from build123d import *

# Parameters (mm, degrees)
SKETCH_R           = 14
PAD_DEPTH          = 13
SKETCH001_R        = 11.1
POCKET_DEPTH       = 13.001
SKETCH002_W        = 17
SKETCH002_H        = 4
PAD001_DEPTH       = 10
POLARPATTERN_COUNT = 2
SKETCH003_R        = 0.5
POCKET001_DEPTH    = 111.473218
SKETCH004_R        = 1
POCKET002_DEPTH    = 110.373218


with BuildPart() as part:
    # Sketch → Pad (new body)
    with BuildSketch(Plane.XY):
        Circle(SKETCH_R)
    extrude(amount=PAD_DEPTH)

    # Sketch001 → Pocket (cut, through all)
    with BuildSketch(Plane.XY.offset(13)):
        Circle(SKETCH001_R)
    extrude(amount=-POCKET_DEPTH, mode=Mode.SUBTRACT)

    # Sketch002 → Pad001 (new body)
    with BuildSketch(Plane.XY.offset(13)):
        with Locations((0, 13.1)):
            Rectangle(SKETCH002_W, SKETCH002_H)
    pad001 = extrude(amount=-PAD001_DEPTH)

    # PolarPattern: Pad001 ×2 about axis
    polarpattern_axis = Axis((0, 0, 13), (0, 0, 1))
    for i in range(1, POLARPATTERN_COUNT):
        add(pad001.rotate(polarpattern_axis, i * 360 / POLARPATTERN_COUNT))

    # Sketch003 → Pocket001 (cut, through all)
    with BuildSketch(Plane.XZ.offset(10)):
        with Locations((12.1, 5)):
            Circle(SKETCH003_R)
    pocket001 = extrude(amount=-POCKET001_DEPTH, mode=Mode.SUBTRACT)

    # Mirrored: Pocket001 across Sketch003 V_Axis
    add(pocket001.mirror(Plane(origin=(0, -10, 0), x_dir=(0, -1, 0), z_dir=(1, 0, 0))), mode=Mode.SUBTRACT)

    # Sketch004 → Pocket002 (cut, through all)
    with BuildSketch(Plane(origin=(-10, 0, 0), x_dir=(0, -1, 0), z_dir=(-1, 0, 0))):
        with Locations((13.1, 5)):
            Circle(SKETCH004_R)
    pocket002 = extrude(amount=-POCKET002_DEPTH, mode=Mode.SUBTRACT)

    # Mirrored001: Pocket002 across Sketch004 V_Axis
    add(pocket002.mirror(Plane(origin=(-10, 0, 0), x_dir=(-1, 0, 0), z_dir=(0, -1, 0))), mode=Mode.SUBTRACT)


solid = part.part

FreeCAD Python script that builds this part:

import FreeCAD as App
import Part
import Sketcher
from FreeCAD import Vector
Q = App.Units.Quantity

doc = App.newDocument("Part")
body = doc.addObject("PartDesign::Body", "Body")

# Sketch on XY plane
sketch1 = body.newObject("Sketcher::SketchObject", "Sketch")
sketch1.AttachmentSupport = (doc.getObject("XY_Plane"), [""])
sketch1.MapMode = "FlatFace"
sketch1.addGeometry(Part.Circle(Vector(0, 0, 0), Vector(0, 0, 1), 14), False)
sketch1.addConstraint(Sketcher.Constraint("Coincident", 0, 3, -1, 1))
sketch1.addConstraint(Sketcher.Constraint("Diameter", 0, Q("28 mm")))
pad1 = body.newObject("PartDesign::Pad", "Pad")
pad1.Profile = sketch1
pad1.Length = 13

# Sketch on XY plane
sketch2 = body.newObject("Sketcher::SketchObject", "Sketch001")
sketch2.AttachmentSupport = (doc.getObject("XY_Plane"), [""])
sketch2.MapMode = "FlatFace"
sketch2.AttachmentOffset = App.Placement(Vector(0, 0, 13), App.Rotation())
sketch2.addGeometry(Part.Circle(Vector(0, 0, 0), Vector(0, 0, 1), 11), False)
sketch2.addConstraint(Sketcher.Constraint("Coincident", 0, 3, -1, 1))
sketch2.addConstraint(Sketcher.Constraint("Diameter", 0, Q("22.2 mm")))
pocket1 = body.newObject("PartDesign::Pocket", "Pocket")
pocket1.Profile = sketch2
pocket1.Type = "ThroughAll"

# Sketch on XY plane
sketch3 = body.newObject("Sketcher::SketchObject", "Sketch002")
sketch3.AttachmentSupport = (doc.getObject("XY_Plane"), [""])
sketch3.MapMode = "FlatFace"
sketch3.AttachmentOffset = App.Placement(Vector(0, 0, 13), App.Rotation())
sketch3.addGeometry(Part.LineSegment(Vector(-8.5, 15.1, 0), Vector(-8.5, 11.1, 0)), False)
sketch3.addGeometry(Part.LineSegment(Vector(-8.5, 11.1, 0), Vector(8.5, 11.1, 0)), False)
sketch3.addGeometry(Part.LineSegment(Vector(8.5, 11.1, 0), Vector(8.5, 15.1, 0)), False)
sketch3.addGeometry(Part.LineSegment(Vector(8.5, 15.1, 0), Vector(-8.5, 15.1, 0)), False)
sketch3.addConstraint(Sketcher.Constraint("Coincident", 0, 2, 1, 1))
sketch3.addConstraint(Sketcher.Constraint("Coincident", 1, 2, 2, 1))
sketch3.addConstraint(Sketcher.Constraint("Coincident", 2, 2, 3, 1))
sketch3.addConstraint(Sketcher.Constraint("Coincident", 3, 2, 0, 1))
sketch3.addConstraint(Sketcher.Constraint("Vertical", 0))
sketch3.addConstraint(Sketcher.Constraint("Horizontal", 1))
sketch3.addConstraint(Sketcher.Constraint("Vertical", 2))
sketch3.addConstraint(Sketcher.Constraint("Horizontal", 3))
sketch3.addConstraint(Sketcher.Constraint("DistanceX", 1, 1, 1, 2, Q("17 mm")))
sketch3.addConstraint(Sketcher.Constraint("DistanceY", 0, 2, 0, 1, Q("4 mm")))
sketch3.addConstraint(Sketcher.Constraint("DistanceX", 0, 2, -1, 1, Q("8.5 mm")))
sketch3.addConstraint(Sketcher.Constraint("DistanceY", -1, 1, 0, 2, Q("11.1 mm")))
pad2 = body.newObject("PartDesign::Pad", "Pad001")
pad2.Profile = sketch3
pad2.Length = 10
pad2.Reversed = True
doc.recompute()

polarpattern = body.newObject("PartDesign::PolarPattern", "PolarPattern")
polarpattern.Originals = [pad2]
polarpattern.Axis = (doc.getObject("Z_Axis"), [""])
polarpattern.Angle = 360
polarpattern.Occurrences = 2
body.Tip = polarpattern

# Sketch on XZ plane
sketch4 = body.newObject("Sketcher::SketchObject", "Sketch003")
sketch4.AttachmentSupport = (doc.getObject("XZ_Plane"), [""])
sketch4.MapMode = "FlatFace"
sketch4.AttachmentOffset = App.Placement(Vector(0, 0, 10), App.Rotation())
sketch4.addGeometry(Part.Circle(Vector(12.1, 5, 0), Vector(0, 0, 1), 0.5), False)
sketch4.addConstraint(Sketcher.Constraint("Diameter", 0, Q("1 mm")))
sketch4.addConstraint(Sketcher.Constraint("DistanceY", -1, 1, 0, 3, Q("5 mm")))
sketch4.addConstraint(Sketcher.Constraint("DistanceX", -1, 1, 0, 3, Q("12.1 mm")))
pocket2 = body.newObject("PartDesign::Pocket", "Pocket001")
pocket2.Profile = sketch4
pocket2.Type = "ThroughAll"
doc.recompute()

mirrored = body.newObject("PartDesign::Mirrored", "Mirrored")
mirrored.Originals = [pocket2]
mirrored.MirrorPlane = (doc.getObject("YZ_Plane"), [""])
body.Tip = mirrored

# Sketch on YZ plane
sketch5 = body.newObject("Sketcher::SketchObject", "Sketch004")
sketch5.AttachmentSupport = (doc.getObject("YZ_Plane"), [""])
sketch5.MapMode = "FlatFace"
sketch5.AttachmentOffset = App.Placement(Vector(0, 0, -10), App.Rotation())
sketch5.addGeometry(Part.Circle(Vector(-13.1, 5, 0), Vector(0, 0, 1), 1), False)
sketch5.addConstraint(Sketcher.Constraint("Diameter", 0, Q("2 mm")))
sketch5.addConstraint(Sketcher.Constraint("DistanceY", -1, 1, 0, 3, Q("5 mm")))
sketch5.addConstraint(Sketcher.Constraint("DistanceX", 0, 3, -1, 1, Q("13.1 mm")))
pocket3 = body.newObject("PartDesign::Pocket", "Pocket002")
pocket3.Profile = sketch5
pocket3.Type = "ThroughAll"
pocket3.Reversed = True
doc.recompute()

mirrored2 = body.newObject("PartDesign::Mirrored", "Mirrored001")
mirrored2.Originals = [pocket3]
mirrored2.MirrorPlane = (doc.getObject("XZ_Plane"), [""])
body.Tip = mirrored2

doc.recompute()
